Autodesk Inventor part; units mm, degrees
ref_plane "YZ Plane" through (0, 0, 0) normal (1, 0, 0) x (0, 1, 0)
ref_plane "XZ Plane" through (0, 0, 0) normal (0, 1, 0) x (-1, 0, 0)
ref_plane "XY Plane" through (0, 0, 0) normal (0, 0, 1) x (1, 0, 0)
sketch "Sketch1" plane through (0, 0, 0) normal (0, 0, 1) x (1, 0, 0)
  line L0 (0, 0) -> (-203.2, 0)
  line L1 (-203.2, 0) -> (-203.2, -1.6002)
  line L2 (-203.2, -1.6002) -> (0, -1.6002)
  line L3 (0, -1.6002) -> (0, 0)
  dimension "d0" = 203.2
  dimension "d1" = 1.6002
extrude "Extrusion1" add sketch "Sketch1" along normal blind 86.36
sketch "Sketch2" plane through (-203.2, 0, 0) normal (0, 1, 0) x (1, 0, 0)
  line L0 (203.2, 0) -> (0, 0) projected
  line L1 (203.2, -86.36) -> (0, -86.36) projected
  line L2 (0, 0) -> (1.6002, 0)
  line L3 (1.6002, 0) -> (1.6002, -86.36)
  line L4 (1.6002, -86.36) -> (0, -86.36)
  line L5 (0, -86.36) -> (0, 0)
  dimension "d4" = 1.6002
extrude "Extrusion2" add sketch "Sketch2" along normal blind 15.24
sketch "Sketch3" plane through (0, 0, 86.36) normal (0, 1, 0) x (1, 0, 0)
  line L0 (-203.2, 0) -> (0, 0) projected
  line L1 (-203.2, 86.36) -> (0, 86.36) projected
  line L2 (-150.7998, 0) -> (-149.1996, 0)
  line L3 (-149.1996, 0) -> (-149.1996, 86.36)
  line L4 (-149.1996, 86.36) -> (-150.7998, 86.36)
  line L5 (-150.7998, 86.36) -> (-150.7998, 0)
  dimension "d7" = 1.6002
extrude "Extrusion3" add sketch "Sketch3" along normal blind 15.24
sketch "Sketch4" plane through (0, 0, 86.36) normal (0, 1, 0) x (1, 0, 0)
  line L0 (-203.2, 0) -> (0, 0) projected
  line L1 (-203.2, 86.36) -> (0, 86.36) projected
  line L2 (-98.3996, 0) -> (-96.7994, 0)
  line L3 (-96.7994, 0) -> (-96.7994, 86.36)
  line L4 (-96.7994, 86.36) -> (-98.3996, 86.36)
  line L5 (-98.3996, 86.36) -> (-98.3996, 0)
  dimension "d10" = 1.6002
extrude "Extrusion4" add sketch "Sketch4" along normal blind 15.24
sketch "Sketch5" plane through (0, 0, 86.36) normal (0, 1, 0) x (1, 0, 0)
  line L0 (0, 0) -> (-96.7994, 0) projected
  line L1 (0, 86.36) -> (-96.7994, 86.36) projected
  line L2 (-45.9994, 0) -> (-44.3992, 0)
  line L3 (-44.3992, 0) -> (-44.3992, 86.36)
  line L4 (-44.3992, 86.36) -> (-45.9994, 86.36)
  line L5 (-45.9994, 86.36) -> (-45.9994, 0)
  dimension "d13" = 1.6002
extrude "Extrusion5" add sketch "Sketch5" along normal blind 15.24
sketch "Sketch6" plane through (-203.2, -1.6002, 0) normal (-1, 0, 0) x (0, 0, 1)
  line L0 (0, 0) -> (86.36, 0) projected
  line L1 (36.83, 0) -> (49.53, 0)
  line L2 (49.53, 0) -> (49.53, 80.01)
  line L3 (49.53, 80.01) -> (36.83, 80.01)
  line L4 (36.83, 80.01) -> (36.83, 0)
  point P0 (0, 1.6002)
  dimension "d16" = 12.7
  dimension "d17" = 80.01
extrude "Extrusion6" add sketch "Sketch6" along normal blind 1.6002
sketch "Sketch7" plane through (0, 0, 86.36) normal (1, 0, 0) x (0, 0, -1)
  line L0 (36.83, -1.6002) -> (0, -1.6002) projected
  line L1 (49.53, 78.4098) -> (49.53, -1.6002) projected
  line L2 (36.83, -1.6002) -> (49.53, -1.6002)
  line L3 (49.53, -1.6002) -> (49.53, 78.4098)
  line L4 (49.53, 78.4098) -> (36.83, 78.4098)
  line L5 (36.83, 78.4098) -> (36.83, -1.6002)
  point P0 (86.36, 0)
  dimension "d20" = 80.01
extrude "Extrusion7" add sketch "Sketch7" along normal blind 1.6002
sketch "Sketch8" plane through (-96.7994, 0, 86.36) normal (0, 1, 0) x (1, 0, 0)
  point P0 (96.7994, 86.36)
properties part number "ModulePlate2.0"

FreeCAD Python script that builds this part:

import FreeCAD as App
import Part
import Sketcher

V = App.Vector
Q = App.Units.Quantity


def add_polygon(sketch, points):
    """Adds a closed chain of lines whose ends are joined by coincident constraints."""
    first, n = sketch.GeometryCount, len(points)
    for a, b in zip(points, points[1:] + points[:1]):
        sketch.addGeometry(Part.LineSegment(App.Vector(*a, 0), App.Vector(*b, 0)), False)
    for i in range(n):
        sketch.addConstraint(Sketcher.Constraint("Coincident", first + i, 2, first + (i + 1) % n, 1))

doc = App.newDocument("Part")
body = doc.addObject("PartDesign::Body", "Body")

# Sketch on XY plane
sketch1 = doc.addObject("Sketcher::SketchObject", "Sketch")
body.addObject(sketch1)
sketch1.AttachmentSupport = (doc.XY_Plane, [""])
sketch1.MapMode = "FlatFace"
add_polygon(sketch1, [(0, -1.6), (0, 0), (-203.2, 0), (-203.2, -1.6)])  # lines 0-3
sketch1.addConstraint([
    Sketcher.Constraint("Vertical", 0),
    Sketcher.Constraint("Horizontal", 1),
    Sketcher.Constraint("Vertical", 2),
    Sketcher.Constraint("Horizontal", 3),
    Sketcher.Constraint("Coincident", 0, 2, -1, 1),
    Sketcher.Constraint("DistanceX", 1, 2, 1, 1, Q("8 in")),
    Sketcher.Constraint("DistanceY", 0, 1, 0, 2, Q("0.063 in")),
])
pad1 = doc.addObject("PartDesign::Pad", "Pad")
body.addObject(pad1)
pad1.Profile = sketch1
pad1.Length = Q("3.4 in")

# Sketch on XZ plane
sketch2 = doc.addObject("Sketcher::SketchObject", "Sketch001")
body.addObject(sketch2)
sketch2.AttachmentSupport = (doc.XZ_Plane, [""])
sketch2.MapMode = "FlatFace"
add_polygon(sketch2, [(-201.6, 86.4), (-201.6, 0), (-203.2, 0), (-203.2, 86.4)])  # lines 0-3
sketch2.addConstraint([
    Sketcher.Constraint("Vertical", 0),
    Sketcher.Constraint("Horizontal", 1),
    Sketcher.Constraint("Vertical", 2),
    Sketcher.Constraint("Horizontal", 3),
    Sketcher.Constraint("PointOnObject", 0, 2, -1),
    Sketcher.Constraint("DistanceX", 1, 2, 1, 1, Q("0.063 in")),
    Sketcher.Constraint("DistanceY", 0, 2, 0, 1, Q("3.4 in")),
    Sketcher.Constraint("DistanceX", 1, 2, -1, 1, Q("8 in")),
])
pad2 = doc.addObject("PartDesign::Pad", "Pad001")
body.addObject(pad2)
pad2.Profile = sketch2
pad2.Length = Q("0.6 in")
pad2.Reversed = True

# Sketch on XZ plane
sketch3 = doc.addObject("Sketcher::SketchObject", "Sketch002")
body.addObject(sketch3)
sketch3.AttachmentSupport = (doc.XZ_Plane, [""])
sketch3.MapMode = "FlatFace"
add_polygon(sketch3, [(-150.8, 0), (-150.8, 86.4), (-149.2, 86.4), (-149.2, 0)])  # lines 0-3
sketch3.addConstraint([
    Sketcher.Constraint("Vertical", 0),
    Sketcher.Constraint("Horizontal", 1),
    Sketcher.Constraint("Vertical", 2),
    Sketcher.Constraint("Horizontal", 3),
    Sketcher.Constraint("PointOnObject", 2, 2, -1),
    Sketcher.Constraint("DistanceX", 1, 1, 1, 2, Q("0.063 in")),
    Sketcher.Constraint("DistanceY", 0, 1, 0, 2, Q("3.4 in")),
    Sketcher.Constraint("DistanceX", 0, 2, -1, 1, Q("5.937 in")),
])
pad3 = doc.addObject("PartDesign::Pad", "Pad002")
body.addObject(pad3)
pad3.Profile = sketch3
pad3.Length = Q("0.6 in")
pad3.Reversed = True

# Sketch on XZ plane
sketch4 = doc.addObject("Sketcher::SketchObject", "Sketch003")
body.addObject(sketch4)
sketch4.AttachmentSupport = (doc.XZ_Plane, [""])
sketch4.MapMode = "FlatFace"
add_polygon(sketch4, [(-98.4, 0), (-98.4, 86.4), (-96.8, 86.4), (-96.8, 0)])  # lines 0-3
sketch4.addConstraint([
    Sketcher.Constraint("Vertical", 0),
    Sketcher.Constraint("Horizontal", 1),
    Sketcher.Constraint("Vertical", 2),
    Sketcher.Constraint("Horizontal", 3),
    Sketcher.Constraint("PointOnObject", 2, 2, -1),
    Sketcher.Constraint("DistanceX", 1, 1, 1, 2, Q("0.063 in")),
    Sketcher.Constraint("DistanceY", 0, 1, 0, 2, Q("3.4 in")),
    Sketcher.Constraint("DistanceX", 0, 2, -1, 1, Q("3.874 in")),
])
pad4 = doc.addObject("PartDesign::Pad", "Pad003")
body.addObject(pad4)
pad4.Profile = sketch4
pad4.Length = Q("0.6 in")
pad4.Reversed = True

# Sketch on XZ plane
sketch5 = doc.addObject("Sketcher::SketchObject", "Sketch004")
body.addObject(sketch5)
sketch5.AttachmentSupport = (doc.XZ_Plane, [""])
sketch5.MapMode = "FlatFace"
add_polygon(sketch5, [(-46, 86.4), (-44.4, 86.4), (-44.4, 0), (-46, 0)])  # lines 0-3
sketch5.addConstraint([
    Sketcher.Constraint("Horizontal", 0),
    Sketcher.Constraint("Vertical", 1),
    Sketcher.Constraint("Horizontal", 2),
    Sketcher.Constraint("Vertical", 3),
    Sketcher.Constraint("PointOnObject", 1, 2, -1),
    Sketcher.Constraint("DistanceX", 0, 1, 0, 2, Q("0.063 in")),
    Sketcher.Constraint("DistanceY", 1, 2, 1, 1, Q("3.4 in")),
    Sketcher.Constraint("DistanceX", 0, 2, -1, 1, Q("1.748 in")),
])
pad5 = doc.addObject("PartDesign::Pad", "Pad004")
body.addObject(pad5)
pad5.Profile = sketch5
pad5.Length = Q("0.6 in")
pad5.Reversed = True

# Sketch on YZ plane
sketch6 = doc.addObject("Sketcher::SketchObject", "Sketch005")
body.addObject(sketch6)
sketch6.AttachmentSupport = (doc.YZ_Plane, [""])
sketch6.MapMode = "FlatFace"
sketch6.AttachmentOffset = App.Placement(V(0, 0, -8 * 25.4), App.Rotation())
add_polygon(sketch6, [(78, 37), (-2, 37), (-2, 50), (78, 50)])  # lines 0-3
sketch6.addConstraint([
    Sketcher.Constraint("Horizontal", 0),
    Sketcher.Constraint("Vertical", 1),
    Sketcher.Constraint("Horizontal", 2),
    Sketcher.Constraint("Vertical", 3),
    Sketcher.Constraint("DistanceY", 1, 1, 1, 2, Q("0.5 in")),
    Sketcher.Constraint("DistanceX", 0, 2, 0, 1, Q("3.15 in")),
    Sketcher.Constraint("DistanceY", -1, 1, 0, 2, Q("1.45 in")),
    Sketcher.Constraint("DistanceX", 0, 2, -1, 1, Q("0.063 in")),
])
pad6 = doc.addObject("PartDesign::Pad", "Pad005")
body.addObject(pad6)
pad6.Profile = sketch6
pad6.Length = Q("0.063 in")
pad6.Reversed = True

# Sketch on YZ plane
sketch7 = doc.addObject("Sketcher::SketchObject", "Sketch006")
body.addObject(sketch7)
sketch7.AttachmentSupport = (doc.YZ_Plane, [""])
sketch7.MapMode = "FlatFace"
add_polygon(sketch7, [(-2, 37), (78, 37), (78, 50), (-2, 50)])  # lines 0-3
sketch7.addConstraint([
    Sketcher.Constraint("Horizontal", 0),
    Sketcher.Constraint("Vertical", 1),
    Sketcher.Constraint("Horizontal", 2),
    Sketcher.Constraint("Vertical", 3),
    Sketcher.Constraint("DistanceX", 0, 1, 0, 2, Q("3.15 in")),
    Sketcher.Constraint("DistanceY", 1, 1, 1, 2, Q("0.5 in")),
    Sketcher.Constraint("DistanceY", -1, 1, 0, 2, Q("1.45 in")),
    Sketcher.Constraint("DistanceX", -1, 1, 0, 2, Q("3.087 in")),
])
pad7 = doc.addObject("PartDesign::Pad", "Pad006")
body.addObject(pad7)
pad7.Profile = sketch7
pad7.Length = Q("0.063 in")

doc.recompute()
